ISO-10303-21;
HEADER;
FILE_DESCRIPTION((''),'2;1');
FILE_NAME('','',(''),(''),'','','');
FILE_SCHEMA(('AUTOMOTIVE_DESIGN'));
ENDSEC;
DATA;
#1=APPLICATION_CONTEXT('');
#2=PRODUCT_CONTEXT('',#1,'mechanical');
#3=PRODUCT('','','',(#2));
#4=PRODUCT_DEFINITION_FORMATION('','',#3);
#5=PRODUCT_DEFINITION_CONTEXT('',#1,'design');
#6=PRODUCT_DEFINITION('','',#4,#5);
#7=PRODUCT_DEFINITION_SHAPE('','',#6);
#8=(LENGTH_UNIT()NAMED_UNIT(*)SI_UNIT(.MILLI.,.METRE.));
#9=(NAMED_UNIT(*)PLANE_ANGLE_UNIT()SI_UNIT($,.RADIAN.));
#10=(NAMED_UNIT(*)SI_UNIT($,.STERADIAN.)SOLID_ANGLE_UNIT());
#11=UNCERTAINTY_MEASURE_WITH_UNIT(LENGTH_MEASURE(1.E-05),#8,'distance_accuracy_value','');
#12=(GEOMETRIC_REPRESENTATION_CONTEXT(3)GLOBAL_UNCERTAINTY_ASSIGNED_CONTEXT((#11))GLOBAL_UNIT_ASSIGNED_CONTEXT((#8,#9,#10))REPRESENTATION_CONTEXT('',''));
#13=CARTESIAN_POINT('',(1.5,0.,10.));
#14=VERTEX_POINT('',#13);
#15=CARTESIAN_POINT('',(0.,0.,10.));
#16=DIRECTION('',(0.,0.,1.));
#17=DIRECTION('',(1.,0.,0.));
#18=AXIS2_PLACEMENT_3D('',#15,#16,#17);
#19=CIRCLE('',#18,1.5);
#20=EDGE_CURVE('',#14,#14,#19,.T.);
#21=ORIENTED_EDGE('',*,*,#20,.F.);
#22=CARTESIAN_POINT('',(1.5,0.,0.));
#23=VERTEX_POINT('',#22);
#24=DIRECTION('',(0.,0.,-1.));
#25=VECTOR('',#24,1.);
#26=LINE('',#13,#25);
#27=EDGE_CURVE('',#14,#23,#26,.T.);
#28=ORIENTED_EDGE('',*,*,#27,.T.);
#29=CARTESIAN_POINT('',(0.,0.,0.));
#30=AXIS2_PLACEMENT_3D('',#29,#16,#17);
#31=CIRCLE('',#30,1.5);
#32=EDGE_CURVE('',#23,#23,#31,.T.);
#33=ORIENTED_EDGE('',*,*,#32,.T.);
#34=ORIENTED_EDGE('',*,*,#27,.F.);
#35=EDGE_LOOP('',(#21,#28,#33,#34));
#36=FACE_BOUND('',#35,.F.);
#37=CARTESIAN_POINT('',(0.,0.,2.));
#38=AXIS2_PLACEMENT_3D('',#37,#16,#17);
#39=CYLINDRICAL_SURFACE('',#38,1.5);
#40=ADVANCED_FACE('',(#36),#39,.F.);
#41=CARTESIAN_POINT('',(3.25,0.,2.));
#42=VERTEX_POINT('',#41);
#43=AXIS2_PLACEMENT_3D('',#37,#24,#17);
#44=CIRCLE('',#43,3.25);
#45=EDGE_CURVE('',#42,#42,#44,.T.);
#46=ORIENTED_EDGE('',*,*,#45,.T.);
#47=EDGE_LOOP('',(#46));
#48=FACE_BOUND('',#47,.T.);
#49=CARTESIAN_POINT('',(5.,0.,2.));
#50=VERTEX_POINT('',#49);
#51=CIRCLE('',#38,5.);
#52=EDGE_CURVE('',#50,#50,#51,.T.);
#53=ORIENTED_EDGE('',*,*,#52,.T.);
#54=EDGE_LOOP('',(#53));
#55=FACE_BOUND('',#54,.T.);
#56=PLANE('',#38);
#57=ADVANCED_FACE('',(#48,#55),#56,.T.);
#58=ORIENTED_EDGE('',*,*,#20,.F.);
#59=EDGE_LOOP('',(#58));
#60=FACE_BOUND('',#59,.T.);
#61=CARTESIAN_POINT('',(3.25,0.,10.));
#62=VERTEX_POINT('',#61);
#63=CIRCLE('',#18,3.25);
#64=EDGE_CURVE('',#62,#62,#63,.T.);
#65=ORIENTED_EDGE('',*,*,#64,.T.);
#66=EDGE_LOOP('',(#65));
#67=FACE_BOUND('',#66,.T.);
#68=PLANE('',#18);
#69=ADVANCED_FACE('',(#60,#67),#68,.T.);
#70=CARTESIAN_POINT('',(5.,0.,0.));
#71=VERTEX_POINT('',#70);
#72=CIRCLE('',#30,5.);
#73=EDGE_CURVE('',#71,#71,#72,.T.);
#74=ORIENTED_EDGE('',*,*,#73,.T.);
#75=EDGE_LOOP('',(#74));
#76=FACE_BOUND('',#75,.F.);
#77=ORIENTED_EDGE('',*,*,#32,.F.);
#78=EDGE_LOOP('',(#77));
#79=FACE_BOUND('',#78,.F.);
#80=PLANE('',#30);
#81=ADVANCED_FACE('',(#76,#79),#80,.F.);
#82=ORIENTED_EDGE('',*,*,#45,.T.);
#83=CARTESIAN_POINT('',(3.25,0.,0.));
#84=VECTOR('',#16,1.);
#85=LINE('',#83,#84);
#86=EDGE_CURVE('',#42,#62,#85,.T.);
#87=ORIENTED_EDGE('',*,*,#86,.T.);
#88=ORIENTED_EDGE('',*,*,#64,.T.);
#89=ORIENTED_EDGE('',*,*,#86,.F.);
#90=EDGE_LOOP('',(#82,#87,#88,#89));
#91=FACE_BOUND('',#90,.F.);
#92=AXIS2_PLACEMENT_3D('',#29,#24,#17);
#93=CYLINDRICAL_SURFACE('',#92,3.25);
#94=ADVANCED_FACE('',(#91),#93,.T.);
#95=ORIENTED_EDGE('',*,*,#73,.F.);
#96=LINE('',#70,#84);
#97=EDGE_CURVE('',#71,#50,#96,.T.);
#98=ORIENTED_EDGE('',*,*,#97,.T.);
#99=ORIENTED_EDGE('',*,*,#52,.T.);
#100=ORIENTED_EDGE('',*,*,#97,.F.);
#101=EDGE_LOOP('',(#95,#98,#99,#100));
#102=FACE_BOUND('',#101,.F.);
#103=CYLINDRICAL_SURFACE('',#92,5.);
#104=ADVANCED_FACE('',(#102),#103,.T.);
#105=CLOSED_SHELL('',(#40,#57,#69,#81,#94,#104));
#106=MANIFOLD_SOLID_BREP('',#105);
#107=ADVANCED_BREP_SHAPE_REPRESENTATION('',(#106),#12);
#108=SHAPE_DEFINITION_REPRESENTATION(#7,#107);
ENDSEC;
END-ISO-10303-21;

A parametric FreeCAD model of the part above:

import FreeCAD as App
import Part
import Sketcher

V = App.Vector
Q = App.Units.Quantity

doc = App.newDocument("Part")
params = doc.addObject("Spreadsheet::Sheet", "Params")
for row, (alias, value) in enumerate([
    ("sketch1_diameter", "3 mm"),
    ("sketch1_diameter2", "6.5 mm"),
    ("pad1_length", "10 mm"),
    ("sketch2_diameter", "10 mm"),
    ("pad2_length", "2 mm"),
    ("sketch3_diameter", "3 mm"),
    ("pocket1_length", "25 mm"),
], start=1):
    params.set(f"A{row}", alias)
    params.set(f"B{row}", "=" + value)
    params.setAlias(f"B{row}", alias)

body = doc.addObject("PartDesign::Body", "Body")

# Sketch on XY plane
sketch1 = body.newObject("Sketcher::SketchObject", "Sketch")
sketch1.AttachmentSupport = (doc.getObject("XY_Plane"), [""])
sketch1.MapMode = "FlatFace"
sketch1.addGeometry([
    Part.Circle(V(0, 0, 0), V(0, 0, 1), 3.25),
    Part.Circle(V(0, 0, 0), V(0, 0, 1), 1.5),
], False)
sketch1.addConstraint([
    Sketcher.Constraint("Coincident", 0, 3, -1, 1),
    Sketcher.Constraint("Coincident", 1, 3, -1, 1),
    Sketcher.Constraint("Diameter", 1, Q("3 mm")),
    Sketcher.Constraint("Diameter", 0, Q("6.5 mm")),
])
sketch1.setExpression("Constraints[2]", "Params.sketch1_diameter")
sketch1.setExpression("Constraints[3]", "Params.sketch1_diameter2")
pad1 = body.newObject("PartDesign::Pad", "Pad")
pad1.Profile = sketch1
pad1.setExpression("Length", "Params.pad1_length")

# Sketch on XY plane
sketch2 = body.newObject("Sketcher::SketchObject", "Sketch001")
sketch2.AttachmentSupport = (doc.getObject("XY_Plane"), [""])
sketch2.MapMode = "FlatFace"
sketch2.addGeometry(Part.Circle(V(0, 0, 0), V(0, 0, 1), 5), False)
sketch2.addConstraint([
    Sketcher.Constraint("Coincident", 0, 3, -1, 1),
    Sketcher.Constraint("Diameter", 0, Q("10 mm")),
])
sketch2.setExpression("Constraints[1]", "Params.sketch2_diameter")
pad2 = body.newObject("PartDesign::Pad", "Pad001")
pad2.Profile = sketch2
pad2.setExpression("Length", "Params.pad2_length")

# Sketch on XY plane
sketch3 = body.newObject("Sketcher::SketchObject", "Sketch002")
sketch3.AttachmentSupport = (doc.getObject("XY_Plane"), [""])
sketch3.MapMode = "FlatFace"
sketch3.AttachmentOffset = App.Placement(V(0, 0, 2), App.Rotation())
sketch3.addGeometry(Part.Circle(V(0, 0, 0), V(0, 0, 1), 1.5), False)
sketch3.addConstraint([
    Sketcher.Constraint("Coincident", 0, 3, -1, 1),
    Sketcher.Constraint("Diameter", 0, Q("3 mm")),
])
sketch3.setExpression("Constraints[1]", "Params.sketch3_diameter")
pocket1 = body.newObject("PartDesign::Pocket", "Pocket")
pocket1.Profile = sketch3
pocket1.setExpression("Length", "Params.pocket1_length")

doc.recompute()
